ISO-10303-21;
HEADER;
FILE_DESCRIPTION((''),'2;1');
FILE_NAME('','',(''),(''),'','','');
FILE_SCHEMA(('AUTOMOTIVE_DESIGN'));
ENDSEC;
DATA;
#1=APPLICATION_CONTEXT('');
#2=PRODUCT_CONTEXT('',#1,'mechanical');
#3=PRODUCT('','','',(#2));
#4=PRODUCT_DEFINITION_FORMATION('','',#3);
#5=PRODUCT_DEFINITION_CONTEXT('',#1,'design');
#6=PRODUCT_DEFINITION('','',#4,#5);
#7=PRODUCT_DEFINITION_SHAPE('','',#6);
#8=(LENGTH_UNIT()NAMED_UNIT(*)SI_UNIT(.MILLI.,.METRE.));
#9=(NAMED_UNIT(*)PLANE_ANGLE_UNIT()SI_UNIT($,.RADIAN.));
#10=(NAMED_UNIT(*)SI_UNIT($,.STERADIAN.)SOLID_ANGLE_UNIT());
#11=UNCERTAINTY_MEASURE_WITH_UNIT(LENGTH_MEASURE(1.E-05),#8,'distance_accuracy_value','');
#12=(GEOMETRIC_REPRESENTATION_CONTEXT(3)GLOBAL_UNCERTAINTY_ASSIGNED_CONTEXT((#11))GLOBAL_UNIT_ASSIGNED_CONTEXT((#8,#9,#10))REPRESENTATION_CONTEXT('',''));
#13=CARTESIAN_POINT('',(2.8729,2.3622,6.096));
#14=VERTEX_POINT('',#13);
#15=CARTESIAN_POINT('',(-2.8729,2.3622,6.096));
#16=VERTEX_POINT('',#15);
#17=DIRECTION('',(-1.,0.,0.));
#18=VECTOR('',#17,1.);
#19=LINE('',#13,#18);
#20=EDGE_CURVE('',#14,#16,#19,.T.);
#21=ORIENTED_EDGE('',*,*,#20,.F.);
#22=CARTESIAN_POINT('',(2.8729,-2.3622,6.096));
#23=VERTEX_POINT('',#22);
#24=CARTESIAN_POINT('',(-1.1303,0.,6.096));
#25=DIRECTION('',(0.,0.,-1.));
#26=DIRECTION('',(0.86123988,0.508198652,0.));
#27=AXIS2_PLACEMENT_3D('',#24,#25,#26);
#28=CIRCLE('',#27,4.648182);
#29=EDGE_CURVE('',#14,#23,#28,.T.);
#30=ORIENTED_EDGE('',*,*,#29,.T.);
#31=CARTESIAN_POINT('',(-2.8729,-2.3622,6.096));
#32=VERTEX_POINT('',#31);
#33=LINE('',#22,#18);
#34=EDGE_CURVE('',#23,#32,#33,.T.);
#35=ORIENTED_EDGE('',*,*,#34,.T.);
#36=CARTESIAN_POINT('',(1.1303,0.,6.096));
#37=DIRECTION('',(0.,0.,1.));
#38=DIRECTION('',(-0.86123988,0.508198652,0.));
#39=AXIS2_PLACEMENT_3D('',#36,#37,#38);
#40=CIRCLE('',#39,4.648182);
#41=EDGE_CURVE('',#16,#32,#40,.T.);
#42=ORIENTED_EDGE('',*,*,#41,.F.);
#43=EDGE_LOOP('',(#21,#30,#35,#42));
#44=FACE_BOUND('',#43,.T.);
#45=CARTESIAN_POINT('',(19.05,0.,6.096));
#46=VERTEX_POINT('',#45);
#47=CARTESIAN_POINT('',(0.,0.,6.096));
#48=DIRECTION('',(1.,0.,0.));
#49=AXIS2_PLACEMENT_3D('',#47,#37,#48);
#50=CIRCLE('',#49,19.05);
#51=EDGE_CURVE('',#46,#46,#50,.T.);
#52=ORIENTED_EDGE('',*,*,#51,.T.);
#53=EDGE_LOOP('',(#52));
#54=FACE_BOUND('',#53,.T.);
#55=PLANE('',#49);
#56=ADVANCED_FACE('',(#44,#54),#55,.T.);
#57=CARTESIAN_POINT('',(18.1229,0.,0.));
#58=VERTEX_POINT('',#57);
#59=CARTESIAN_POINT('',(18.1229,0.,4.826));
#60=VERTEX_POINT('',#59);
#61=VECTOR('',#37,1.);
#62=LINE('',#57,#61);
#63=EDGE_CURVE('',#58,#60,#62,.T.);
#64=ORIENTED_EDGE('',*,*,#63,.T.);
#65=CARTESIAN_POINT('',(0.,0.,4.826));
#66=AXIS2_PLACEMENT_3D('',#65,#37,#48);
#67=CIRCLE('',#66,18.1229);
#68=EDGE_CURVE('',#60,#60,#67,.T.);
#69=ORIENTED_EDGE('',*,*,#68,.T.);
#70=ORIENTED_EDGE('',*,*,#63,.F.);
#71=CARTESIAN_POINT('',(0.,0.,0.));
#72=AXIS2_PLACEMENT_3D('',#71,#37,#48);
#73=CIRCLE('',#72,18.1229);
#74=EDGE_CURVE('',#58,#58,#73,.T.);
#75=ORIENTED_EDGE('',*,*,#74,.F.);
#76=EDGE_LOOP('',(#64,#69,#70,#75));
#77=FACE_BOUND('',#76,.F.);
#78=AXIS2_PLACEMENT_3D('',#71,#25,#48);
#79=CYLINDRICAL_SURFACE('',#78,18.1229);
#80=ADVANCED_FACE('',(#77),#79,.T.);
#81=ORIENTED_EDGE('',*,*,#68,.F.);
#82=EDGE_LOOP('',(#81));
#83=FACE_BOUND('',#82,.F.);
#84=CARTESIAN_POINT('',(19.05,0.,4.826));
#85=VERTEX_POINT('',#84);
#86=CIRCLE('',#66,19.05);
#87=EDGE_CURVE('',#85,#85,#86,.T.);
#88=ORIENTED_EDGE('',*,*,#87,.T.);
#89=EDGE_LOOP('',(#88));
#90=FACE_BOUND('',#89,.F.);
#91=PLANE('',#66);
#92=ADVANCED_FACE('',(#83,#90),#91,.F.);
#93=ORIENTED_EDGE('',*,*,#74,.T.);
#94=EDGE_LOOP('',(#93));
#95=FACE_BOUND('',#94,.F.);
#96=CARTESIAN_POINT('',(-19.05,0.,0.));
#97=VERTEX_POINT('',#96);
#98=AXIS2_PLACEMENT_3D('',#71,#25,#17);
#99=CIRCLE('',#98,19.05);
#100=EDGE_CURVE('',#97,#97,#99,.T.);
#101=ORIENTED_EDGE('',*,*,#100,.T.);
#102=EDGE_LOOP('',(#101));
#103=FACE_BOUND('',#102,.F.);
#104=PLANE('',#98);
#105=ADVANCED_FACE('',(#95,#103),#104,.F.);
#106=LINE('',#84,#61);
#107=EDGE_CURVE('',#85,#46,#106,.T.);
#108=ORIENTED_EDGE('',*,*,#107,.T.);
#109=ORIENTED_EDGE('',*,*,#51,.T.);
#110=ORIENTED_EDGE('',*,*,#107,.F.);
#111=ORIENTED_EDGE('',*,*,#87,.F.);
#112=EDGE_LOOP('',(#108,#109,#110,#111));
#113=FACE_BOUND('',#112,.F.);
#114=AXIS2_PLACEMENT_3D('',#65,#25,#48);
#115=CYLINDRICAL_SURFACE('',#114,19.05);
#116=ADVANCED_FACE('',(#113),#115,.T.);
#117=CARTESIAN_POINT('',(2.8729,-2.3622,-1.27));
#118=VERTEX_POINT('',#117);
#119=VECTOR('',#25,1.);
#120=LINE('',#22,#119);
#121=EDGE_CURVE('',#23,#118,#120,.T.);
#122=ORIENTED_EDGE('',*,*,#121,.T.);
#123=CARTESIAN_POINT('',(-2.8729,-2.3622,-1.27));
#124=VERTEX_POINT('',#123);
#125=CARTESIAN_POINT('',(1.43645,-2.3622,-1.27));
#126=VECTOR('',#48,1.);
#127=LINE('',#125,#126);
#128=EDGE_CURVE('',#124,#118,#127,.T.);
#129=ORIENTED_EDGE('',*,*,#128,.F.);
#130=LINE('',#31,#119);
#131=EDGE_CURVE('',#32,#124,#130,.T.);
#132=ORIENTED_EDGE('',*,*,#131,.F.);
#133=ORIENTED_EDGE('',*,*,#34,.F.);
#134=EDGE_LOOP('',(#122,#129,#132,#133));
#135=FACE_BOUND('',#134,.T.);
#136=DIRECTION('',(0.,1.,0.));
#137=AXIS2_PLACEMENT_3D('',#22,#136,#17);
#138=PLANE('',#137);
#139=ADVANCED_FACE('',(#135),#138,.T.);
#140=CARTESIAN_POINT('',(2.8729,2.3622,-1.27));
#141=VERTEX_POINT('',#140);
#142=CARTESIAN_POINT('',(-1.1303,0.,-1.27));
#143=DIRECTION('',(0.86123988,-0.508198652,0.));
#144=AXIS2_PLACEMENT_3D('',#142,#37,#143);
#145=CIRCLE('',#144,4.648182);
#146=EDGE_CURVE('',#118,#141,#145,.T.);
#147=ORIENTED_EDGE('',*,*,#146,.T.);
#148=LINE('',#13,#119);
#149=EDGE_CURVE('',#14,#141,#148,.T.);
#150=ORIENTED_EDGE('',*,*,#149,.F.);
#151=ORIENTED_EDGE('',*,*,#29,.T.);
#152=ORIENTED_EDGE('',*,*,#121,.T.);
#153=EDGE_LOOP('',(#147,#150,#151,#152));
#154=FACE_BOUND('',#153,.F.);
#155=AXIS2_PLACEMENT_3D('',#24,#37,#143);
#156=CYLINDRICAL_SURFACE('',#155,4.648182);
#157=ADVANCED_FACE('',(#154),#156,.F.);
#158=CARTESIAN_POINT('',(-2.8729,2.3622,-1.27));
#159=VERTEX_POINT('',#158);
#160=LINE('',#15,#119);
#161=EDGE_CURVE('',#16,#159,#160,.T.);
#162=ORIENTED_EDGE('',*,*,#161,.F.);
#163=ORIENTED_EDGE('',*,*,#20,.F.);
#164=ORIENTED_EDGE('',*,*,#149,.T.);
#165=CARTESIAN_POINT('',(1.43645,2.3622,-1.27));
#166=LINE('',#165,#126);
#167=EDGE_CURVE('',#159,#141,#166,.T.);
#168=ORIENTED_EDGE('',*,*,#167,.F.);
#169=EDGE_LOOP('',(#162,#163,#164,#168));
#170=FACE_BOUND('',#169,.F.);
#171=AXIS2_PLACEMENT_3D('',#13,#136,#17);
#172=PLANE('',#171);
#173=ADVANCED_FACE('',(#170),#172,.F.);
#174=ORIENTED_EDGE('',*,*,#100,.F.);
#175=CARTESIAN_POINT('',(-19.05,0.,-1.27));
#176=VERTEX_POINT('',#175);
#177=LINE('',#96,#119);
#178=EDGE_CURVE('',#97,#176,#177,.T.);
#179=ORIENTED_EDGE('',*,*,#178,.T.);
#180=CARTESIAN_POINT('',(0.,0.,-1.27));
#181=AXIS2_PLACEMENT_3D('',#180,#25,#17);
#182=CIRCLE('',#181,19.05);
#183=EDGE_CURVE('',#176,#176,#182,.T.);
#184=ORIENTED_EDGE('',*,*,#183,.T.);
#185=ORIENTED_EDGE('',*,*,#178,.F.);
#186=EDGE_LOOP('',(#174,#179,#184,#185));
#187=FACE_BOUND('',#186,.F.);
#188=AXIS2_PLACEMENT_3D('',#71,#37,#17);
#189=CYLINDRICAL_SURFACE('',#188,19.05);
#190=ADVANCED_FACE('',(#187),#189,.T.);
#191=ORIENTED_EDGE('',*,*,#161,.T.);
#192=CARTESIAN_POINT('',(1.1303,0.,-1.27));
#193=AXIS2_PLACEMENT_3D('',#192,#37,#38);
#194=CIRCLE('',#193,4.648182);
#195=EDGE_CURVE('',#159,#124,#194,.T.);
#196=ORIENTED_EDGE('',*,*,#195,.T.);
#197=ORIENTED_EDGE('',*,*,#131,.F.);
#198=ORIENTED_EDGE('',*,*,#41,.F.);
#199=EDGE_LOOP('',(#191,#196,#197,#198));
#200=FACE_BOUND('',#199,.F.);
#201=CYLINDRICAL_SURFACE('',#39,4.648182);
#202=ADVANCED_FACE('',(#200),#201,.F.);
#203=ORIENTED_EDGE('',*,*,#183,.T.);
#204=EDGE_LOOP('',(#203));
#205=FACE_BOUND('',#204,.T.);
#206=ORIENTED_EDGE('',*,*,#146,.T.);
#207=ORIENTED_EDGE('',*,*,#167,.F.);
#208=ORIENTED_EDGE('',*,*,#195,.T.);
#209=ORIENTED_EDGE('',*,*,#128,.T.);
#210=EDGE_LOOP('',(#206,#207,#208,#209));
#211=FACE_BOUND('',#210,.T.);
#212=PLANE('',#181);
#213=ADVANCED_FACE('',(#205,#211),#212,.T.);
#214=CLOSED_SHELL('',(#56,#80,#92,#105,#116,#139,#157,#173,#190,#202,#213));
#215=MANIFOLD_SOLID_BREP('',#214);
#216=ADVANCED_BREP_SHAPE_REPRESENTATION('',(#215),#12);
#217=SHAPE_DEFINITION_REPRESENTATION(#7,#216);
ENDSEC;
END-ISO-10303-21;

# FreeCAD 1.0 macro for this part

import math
import FreeCAD as App
import Part
import Sketcher

V = App.Vector
Q = App.Units.Quantity

doc = App.newDocument("Part")
body = doc.addObject("PartDesign::Body", "Body")

sketch1 = body.newObject("Sketcher::SketchObject", "Sketch")
sketch1.AttachmentSupport = (doc.getObject("XY_Plane"), [""])
sketch1.MapMode = "FlatFace"
sketch1.addGeometry(Part.Circle(V(0, 0, 0), V(0, 0, 1), 18), False)
sketch1.addConstraint(Sketcher.Constraint("Coincident", 0, 3, -1, 1))
sketch1.addConstraint(Sketcher.Constraint("Diameter", 0, Q("1.427 in")))
pad1 = body.newObject("PartDesign::Pad", "Pad")
pad1.Profile = sketch1
pad1.Length = Q("0.19 in")

sketch2 = body.newObject("Sketcher::SketchObject", "Sketch001")
sketch2.AttachmentSupport = (doc.getObject("XY_Plane"), [""])
sketch2.MapMode = "FlatFace"
sketch2.AttachmentOffset = App.Placement(V(0, 0, 0.19 * 25.4), App.Rotation())
sketch2.addGeometry(Part.Circle(V(0, 0, 0), V(0, 0, 1), 19), False)
sketch2.addConstraint(Sketcher.Constraint("Coincident", 0, 3, -1, 1))
sketch2.addConstraint(Sketcher.Constraint("Diameter", 0, Q("1.5 in")))
pad2 = body.newObject("PartDesign::Pad", "Pad001")
pad2.Profile = sketch2
pad2.Length = Q("0.05 in")

sketch3 = body.newObject("Sketcher::SketchObject", "Sketch002")
sketch3.AttachmentSupport = (doc.getObject("XY_Plane"), [""])
sketch3.MapMode = "FlatFace"
sketch3.addGeometry(Part.Circle(V(0, 0, 0), V(0, 0, 1), 19), False)
sketch3.addConstraint(Sketcher.Constraint("Coincident", 0, 3, -1, 1))
sketch3.addConstraint(Sketcher.Constraint("Diameter", 0, Q("1.5 in")))
pad3 = body.newObject("PartDesign::Pad", "Pad002")
pad3.Profile = sketch3
pad3.Length = Q("0.05 in")
pad3.Reversed = True

sketch4 = body.newObject("Sketcher::SketchObject", "Sketch003")
sketch4.AttachmentSupport = (doc.getObject("XY_Plane"), [""])
sketch4.MapMode = "FlatFace"
sketch4.AttachmentOffset = App.Placement(V(0, 0, 0.24 * 25.4), App.Rotation())
sketch4.addGeometry(Part.ArcOfCircle(Part.Circle(V(-1.1, 0, 0), V(0, 0, 1), 4.6), math.radians(-31), math.radians(31)), False)
sketch4.addGeometry(Part.LineSegment(V(2.9, 2.4, 0), V(-2.9, 2.4, 0)), False)
sketch4.addGeometry(Part.ArcOfCircle(Part.Circle(V(1.1, 0, 0), V(0, 0, 1), 4.6), math.radians(149), math.radians(211)), False)
sketch4.addGeometry(Part.LineSegment(V(-2.9, -2.4, 0), V(2.9, -2.4, 0)), False)
sketch4.addConstraint(Sketcher.Constraint("Coincident", 0, 2, 1, 1))
sketch4.addConstraint(Sketcher.Constraint("Coincident", 1, 2, 2, 1))
sketch4.addConstraint(Sketcher.Constraint("Coincident", 2, 2, 3, 1))
sketch4.addConstraint(Sketcher.Constraint("Coincident", 3, 2, 0, 1))
sketch4.addConstraint(Sketcher.Constraint("Horizontal", 1))
sketch4.addConstraint(Sketcher.Constraint("Horizontal", 3))
sketch4.addConstraint(Sketcher.Constraint("Equal", 0, 2))
sketch4.addConstraint(Sketcher.Constraint("Symmetric", 0, 3, 2, 3, -1, 1))
sketch4.addConstraint(Sketcher.Constraint("Symmetric", 1, 2, 2, 2, -1))
sketch4.addConstraint(Sketcher.Constraint("Radius", 0, Q("0.183 in")))
sketch4.addConstraint(Sketcher.Constraint("DistanceY", 2, 2, 1, 2, Q("0.186 in")))
sketch4.addConstraint(Sketcher.Constraint("DistanceX", 0, 3, 2, 3, Q("0.089 in")))
pocket1 = body.newObject("PartDesign::Pocket", "Pocket")
pocket1.Profile = sketch4
pocket1.Length = Q("1 in")

doc.recompute()
